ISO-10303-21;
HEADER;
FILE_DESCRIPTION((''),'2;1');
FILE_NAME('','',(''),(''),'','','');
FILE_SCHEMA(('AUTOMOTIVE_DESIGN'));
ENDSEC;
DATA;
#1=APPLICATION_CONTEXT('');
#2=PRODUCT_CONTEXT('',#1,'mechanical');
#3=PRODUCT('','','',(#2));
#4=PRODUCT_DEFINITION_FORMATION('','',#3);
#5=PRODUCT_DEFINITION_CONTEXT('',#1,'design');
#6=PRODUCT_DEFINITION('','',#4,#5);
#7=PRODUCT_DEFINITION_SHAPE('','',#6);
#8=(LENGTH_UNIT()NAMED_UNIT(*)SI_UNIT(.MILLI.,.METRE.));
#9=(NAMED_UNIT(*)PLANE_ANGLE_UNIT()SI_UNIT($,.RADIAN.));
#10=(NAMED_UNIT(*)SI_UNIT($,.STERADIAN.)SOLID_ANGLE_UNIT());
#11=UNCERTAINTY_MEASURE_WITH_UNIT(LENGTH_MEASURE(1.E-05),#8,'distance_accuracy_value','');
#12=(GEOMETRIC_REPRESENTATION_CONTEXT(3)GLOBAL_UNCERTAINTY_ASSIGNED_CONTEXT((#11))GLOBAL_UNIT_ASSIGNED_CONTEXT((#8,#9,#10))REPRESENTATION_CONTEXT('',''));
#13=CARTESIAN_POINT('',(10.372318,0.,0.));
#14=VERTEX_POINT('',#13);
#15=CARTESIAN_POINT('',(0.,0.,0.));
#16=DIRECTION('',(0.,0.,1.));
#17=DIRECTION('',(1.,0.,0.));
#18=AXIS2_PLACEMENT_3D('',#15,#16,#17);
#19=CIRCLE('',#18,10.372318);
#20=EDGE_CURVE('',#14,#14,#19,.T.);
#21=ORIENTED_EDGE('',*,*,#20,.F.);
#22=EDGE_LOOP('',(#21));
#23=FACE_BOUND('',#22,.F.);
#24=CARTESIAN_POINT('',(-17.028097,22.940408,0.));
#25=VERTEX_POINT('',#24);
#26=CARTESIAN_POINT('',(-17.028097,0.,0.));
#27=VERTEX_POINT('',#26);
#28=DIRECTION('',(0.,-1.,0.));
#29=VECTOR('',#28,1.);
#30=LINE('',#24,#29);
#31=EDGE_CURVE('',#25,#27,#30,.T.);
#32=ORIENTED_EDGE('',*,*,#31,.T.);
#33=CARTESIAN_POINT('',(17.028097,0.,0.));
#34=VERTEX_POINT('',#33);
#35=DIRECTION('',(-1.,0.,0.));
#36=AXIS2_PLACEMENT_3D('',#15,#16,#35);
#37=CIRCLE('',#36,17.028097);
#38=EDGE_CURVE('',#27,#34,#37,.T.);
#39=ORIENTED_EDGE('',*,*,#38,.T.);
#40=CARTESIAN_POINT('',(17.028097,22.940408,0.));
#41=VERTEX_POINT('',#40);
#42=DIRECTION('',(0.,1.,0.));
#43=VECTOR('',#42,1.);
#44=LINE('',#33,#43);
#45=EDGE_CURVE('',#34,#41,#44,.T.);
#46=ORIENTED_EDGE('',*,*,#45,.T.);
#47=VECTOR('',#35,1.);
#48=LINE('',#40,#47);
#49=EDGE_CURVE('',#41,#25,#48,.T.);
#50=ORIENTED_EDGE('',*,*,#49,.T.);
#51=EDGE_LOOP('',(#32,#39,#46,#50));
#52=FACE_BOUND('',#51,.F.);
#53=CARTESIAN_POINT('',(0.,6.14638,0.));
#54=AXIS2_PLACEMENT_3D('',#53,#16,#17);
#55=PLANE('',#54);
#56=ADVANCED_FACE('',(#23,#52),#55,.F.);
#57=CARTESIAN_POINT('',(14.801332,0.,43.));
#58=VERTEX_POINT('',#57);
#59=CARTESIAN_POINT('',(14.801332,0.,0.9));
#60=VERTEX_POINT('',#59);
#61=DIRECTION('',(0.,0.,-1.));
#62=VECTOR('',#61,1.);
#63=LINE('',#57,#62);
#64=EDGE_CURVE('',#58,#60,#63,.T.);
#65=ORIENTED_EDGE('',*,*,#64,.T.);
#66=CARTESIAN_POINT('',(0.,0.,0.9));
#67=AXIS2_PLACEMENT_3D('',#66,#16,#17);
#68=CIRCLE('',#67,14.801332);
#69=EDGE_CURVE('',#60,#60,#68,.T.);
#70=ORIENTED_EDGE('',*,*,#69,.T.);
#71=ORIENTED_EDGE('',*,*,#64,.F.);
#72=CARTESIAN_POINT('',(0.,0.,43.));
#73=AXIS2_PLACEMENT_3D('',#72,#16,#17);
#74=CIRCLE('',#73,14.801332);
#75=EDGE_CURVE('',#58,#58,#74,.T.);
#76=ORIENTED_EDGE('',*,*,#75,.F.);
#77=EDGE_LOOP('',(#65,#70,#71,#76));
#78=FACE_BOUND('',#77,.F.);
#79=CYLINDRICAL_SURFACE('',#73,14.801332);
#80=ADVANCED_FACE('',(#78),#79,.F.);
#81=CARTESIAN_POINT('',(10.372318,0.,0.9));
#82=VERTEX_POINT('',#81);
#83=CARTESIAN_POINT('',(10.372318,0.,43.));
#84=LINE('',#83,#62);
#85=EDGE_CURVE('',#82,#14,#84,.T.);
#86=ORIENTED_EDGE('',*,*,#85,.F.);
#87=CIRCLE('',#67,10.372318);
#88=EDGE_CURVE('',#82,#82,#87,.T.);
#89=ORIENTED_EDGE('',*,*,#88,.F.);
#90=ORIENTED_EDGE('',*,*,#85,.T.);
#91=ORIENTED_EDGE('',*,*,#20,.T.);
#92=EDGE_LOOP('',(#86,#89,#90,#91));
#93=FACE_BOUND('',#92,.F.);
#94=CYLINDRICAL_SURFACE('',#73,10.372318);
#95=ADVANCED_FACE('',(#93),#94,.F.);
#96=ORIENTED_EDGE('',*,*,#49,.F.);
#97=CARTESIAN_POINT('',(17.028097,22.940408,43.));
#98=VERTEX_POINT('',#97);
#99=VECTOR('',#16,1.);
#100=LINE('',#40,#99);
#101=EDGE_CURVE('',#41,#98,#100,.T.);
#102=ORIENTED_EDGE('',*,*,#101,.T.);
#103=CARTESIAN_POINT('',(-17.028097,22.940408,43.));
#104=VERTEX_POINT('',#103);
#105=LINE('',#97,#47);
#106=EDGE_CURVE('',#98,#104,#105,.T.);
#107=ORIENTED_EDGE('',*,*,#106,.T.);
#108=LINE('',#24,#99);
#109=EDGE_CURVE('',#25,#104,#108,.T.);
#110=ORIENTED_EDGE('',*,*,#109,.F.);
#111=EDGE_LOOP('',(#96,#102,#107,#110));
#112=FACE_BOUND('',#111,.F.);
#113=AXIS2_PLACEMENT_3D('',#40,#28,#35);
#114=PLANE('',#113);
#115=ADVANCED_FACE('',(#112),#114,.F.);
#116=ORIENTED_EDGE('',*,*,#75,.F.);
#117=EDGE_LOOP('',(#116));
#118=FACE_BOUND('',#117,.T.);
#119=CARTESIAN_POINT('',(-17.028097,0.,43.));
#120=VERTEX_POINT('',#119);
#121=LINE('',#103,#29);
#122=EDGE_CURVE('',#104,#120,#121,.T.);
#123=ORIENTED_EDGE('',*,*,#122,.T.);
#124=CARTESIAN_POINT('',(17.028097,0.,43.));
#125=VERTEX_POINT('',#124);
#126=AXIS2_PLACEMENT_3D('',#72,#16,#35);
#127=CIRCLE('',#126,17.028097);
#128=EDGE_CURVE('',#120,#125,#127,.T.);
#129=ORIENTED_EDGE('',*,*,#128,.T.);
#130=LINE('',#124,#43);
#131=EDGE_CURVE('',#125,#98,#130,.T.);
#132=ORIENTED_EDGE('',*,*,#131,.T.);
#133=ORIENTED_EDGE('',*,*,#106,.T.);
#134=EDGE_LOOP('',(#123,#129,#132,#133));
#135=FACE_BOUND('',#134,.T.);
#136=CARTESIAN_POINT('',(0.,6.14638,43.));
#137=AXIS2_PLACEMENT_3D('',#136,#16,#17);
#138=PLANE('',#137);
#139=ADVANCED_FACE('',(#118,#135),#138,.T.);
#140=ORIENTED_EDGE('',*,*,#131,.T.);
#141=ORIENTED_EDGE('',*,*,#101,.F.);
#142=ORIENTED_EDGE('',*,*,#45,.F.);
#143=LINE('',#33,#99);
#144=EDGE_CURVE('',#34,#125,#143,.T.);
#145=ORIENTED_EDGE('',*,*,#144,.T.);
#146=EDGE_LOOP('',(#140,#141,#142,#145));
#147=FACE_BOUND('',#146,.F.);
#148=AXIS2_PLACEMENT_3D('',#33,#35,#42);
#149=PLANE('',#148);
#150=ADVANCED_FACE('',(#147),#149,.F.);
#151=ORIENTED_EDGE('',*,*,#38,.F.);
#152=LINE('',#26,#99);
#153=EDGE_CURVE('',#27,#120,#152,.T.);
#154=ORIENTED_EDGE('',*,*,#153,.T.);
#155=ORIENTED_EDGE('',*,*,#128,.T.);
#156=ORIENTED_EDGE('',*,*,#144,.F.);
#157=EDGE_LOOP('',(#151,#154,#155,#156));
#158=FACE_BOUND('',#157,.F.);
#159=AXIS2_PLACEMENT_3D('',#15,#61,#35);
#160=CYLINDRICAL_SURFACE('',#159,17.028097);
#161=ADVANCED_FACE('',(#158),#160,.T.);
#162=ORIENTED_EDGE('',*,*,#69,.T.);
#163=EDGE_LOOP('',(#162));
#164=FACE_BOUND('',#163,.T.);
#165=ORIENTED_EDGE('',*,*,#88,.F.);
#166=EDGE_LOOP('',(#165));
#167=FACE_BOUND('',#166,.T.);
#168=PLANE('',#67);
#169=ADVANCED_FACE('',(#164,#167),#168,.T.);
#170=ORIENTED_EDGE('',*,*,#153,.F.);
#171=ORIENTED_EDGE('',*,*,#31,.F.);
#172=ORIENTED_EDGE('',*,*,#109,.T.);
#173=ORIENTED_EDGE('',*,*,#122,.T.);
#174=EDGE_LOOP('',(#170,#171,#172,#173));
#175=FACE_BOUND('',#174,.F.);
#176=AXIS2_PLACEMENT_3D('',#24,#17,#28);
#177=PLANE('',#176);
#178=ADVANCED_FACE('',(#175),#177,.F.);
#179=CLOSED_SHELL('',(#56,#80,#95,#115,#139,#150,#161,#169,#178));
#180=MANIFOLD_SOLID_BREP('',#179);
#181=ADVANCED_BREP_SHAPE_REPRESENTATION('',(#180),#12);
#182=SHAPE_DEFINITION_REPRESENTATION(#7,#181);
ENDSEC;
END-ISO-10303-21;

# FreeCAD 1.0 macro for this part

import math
import FreeCAD as App
import Part
import Sketcher

V = App.Vector
Q = App.Units.Quantity

doc = App.newDocument("Part")
body = doc.addObject("PartDesign::Body", "Body")

# Sketch on XY plane
sketch1 = body.newObject("Sketcher::SketchObject", "Sketch")
sketch1.AttachmentSupport = (doc.getObject("XY_Plane"), [""])
sketch1.MapMode = "FlatFace"
sketch1.addGeometry(Part.LineSegment(V(17, 0, 0), V(17, 23, 0)), False)
sketch1.addGeometry(Part.LineSegment(V(17, 23, 0), V(-17, 23, 0)), False)
sketch1.addGeometry(Part.LineSegment(V(-17, 23, 0), V(-17, 0, 0)), False)
sketch1.addGeometry(Part.ArcOfCircle(Part.Circle(V(0, 0, 0), V(0, 0, 1), 17), math.radians(180), math.radians(360)), False)
sketch1.addConstraint(Sketcher.Constraint("Coincident", 0, 2, 1, 1))
sketch1.addConstraint(Sketcher.Constraint("Coincident", 1, 2, 2, 1))
sketch1.addConstraint(Sketcher.Constraint("Tangent", 2, 2, 3, 1))
sketch1.addConstraint(Sketcher.Constraint("Tangent", 3, 2, 0, 1))
sketch1.addConstraint(Sketcher.Constraint("Vertical", 0))
sketch1.addConstraint(Sketcher.Constraint("Horizontal", 1))
sketch1.addConstraint(Sketcher.Constraint("Vertical", 2))
sketch1.addConstraint(Sketcher.Constraint("Coincident", 3, 3, -1, 1))
sketch1.addConstraint(Sketcher.Constraint("Radius", 3, Q("17.028097 mm")))
sketch1.addConstraint(Sketcher.Constraint("DistanceY", 0, 1, 0, 2, Q("22.940408 mm")))
pad1 = body.newObject("PartDesign::Pad", "Pad")
pad1.Profile = sketch1
pad1.Length = 43

# Sketch on XY plane
sketch2 = body.newObject("Sketcher::SketchObject", "Sketch001")
sketch2.AttachmentSupport = (doc.getObject("XY_Plane"), [""])
sketch2.MapMode = "FlatFace"
sketch2.AttachmentOffset = App.Placement(V(0, 0, 43), App.Rotation())
sketch2.addGeometry(Part.Circle(V(0, 0, 0), V(0, 0, 1), 15), False)
sketch2.addConstraint(Sketcher.Constraint("Coincident", 0, 3, -1, 1))
sketch2.addConstraint(Sketcher.Constraint("Diameter", 0, Q("29.602665 mm")))
pocket1 = body.newObject("PartDesign::Pocket", "Pocket")
pocket1.Profile = sketch2
pocket1.Length = 42.1

# Sketch on XY plane
sketch3 = body.newObject("Sketcher::SketchObject", "Sketch002")
sketch3.AttachmentSupport = (doc.getObject("XY_Plane"), [""])
sketch3.MapMode = "FlatFace"
sketch3.AttachmentOffset = App.Placement(V(0, 0, 43), App.Rotation())
sketch3.addGeometry(Part.Circle(V(0, 0, 0), V(0, 0, 1), 10), False)
sketch3.addConstraint(Sketcher.Constraint("Coincident", 0, 3, -1, 1))
sketch3.addConstraint(Sketcher.Constraint("Diameter", 0, Q("20.744635 mm")))
pocket2 = body.newObject("PartDesign::Pocket", "Pocket001")
pocket2.Profile = sketch3
pocket2.Type = "ThroughAll"

doc.recompute()
